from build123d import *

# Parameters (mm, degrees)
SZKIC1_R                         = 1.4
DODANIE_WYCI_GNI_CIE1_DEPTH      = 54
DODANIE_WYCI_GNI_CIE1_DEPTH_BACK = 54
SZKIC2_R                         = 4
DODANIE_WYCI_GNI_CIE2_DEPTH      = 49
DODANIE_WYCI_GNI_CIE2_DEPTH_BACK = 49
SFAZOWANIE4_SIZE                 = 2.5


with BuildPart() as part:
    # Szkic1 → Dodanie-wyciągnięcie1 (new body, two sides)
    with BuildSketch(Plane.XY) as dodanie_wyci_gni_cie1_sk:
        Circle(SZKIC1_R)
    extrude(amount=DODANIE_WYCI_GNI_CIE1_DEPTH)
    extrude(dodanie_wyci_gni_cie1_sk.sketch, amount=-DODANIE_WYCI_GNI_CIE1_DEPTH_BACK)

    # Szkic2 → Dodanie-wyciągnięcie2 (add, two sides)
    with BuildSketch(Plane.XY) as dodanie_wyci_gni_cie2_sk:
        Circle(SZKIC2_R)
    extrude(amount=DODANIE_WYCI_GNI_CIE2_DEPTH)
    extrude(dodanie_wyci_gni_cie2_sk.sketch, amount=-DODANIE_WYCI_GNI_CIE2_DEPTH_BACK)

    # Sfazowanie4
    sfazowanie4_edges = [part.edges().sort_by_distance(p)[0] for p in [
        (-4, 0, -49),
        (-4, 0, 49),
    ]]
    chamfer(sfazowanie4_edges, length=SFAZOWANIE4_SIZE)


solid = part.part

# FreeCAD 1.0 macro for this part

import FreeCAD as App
import Part
import Sketcher

V = App.Vector


def edges_at(feature, points):
    """Names of the edges that pass closest to the given points."""
    edges = feature.Shape.Edges
    near = lambda p: min(range(len(edges)), key=lambda i: edges[i].distToShape(Part.Vertex(*p))[0])
    return sorted({f"Edge{near(p) + 1}" for p in points})

doc = App.newDocument("Part")
body = doc.addObject("PartDesign::Body", "Body")

sketch1 = body.newObject("Sketcher::SketchObject", "Sketch")
sketch1.AttachmentSupport = (doc.getObject("XY_Plane"), [""])
sketch1.MapMode = "FlatFace"
sketch1.addGeometry(Part.Circle(V(0, 0, 0), V(0, 0, 1), 1.4), False)
sketch1.addConstraint(Sketcher.Constraint("Coincident", 0, 3, -1, 1))
sketch1.addConstraint(Sketcher.Constraint("Diameter", 0, 2.8))
pad1 = body.newObject("PartDesign::Pad", "Pad")
pad1.Profile = sketch1
pad1.Type = "TwoLengths"
pad1.Length = 54
pad1.Length2 = 54

sketch2 = body.newObject("Sketcher::SketchObject", "Sketch001")
sketch2.AttachmentSupport = (doc.getObject("XY_Plane"), [""])
sketch2.MapMode = "FlatFace"
sketch2.addGeometry(Part.Circle(V(0, 0, 0), V(0, 0, 1), 4), False)
sketch2.addConstraint(Sketcher.Constraint("Coincident", 0, 3, -1, 1))
sketch2.addConstraint(Sketcher.Constraint("Diameter", 0, 8.0))
pad2 = body.newObject("PartDesign::Pad", "Pad001")
pad2.Profile = sketch2
pad2.Type = "TwoLengths"
pad2.Length = 49
pad2.Length2 = 49
doc.recompute()

chamfer = body.newObject("PartDesign::Chamfer", "Chamfer")
chamfer.Base = (pad2, edges_at(pad2, [(-4, 0, -49), (-4, 0, 49)]))
chamfer.Size = 2.5

doc.recompute()
